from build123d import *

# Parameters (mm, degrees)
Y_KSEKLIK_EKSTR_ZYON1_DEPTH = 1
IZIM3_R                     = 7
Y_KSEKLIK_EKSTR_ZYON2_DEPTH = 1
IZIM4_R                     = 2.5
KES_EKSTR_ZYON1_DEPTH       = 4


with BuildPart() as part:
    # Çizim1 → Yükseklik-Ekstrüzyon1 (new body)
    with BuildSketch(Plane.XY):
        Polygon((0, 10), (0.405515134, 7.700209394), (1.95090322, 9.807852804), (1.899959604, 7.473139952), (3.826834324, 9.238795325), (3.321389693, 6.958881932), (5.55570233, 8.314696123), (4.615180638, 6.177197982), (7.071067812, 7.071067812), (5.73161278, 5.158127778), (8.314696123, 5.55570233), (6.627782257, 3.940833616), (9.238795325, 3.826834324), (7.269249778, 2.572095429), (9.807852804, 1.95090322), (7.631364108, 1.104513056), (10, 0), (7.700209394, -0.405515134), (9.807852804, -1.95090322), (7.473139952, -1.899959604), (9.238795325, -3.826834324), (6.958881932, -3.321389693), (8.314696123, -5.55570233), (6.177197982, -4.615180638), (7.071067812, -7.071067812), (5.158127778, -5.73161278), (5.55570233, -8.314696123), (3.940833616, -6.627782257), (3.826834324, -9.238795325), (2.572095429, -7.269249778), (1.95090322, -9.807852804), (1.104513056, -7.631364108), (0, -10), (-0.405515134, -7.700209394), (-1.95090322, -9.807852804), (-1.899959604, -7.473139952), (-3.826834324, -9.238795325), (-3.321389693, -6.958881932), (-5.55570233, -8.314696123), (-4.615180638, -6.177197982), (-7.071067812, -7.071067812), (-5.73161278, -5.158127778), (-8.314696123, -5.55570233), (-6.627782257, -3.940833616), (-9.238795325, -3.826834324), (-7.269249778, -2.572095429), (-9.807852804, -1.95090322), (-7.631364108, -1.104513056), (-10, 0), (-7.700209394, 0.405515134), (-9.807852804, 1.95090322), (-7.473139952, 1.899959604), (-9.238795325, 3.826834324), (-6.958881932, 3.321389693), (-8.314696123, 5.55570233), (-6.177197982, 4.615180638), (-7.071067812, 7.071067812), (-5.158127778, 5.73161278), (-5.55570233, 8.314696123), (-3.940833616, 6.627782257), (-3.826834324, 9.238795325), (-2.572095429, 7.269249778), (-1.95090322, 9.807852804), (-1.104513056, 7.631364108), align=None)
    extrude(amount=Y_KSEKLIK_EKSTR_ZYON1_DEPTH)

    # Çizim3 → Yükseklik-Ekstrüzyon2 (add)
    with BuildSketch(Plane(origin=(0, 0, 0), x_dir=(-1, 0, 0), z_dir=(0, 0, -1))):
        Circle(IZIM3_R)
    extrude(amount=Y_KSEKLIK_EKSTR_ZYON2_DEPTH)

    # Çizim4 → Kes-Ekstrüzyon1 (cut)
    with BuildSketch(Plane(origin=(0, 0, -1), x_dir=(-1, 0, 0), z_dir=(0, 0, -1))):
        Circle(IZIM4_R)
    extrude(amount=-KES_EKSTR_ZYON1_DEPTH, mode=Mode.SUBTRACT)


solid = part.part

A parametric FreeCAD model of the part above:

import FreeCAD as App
import Part
import Sketcher
from FreeCAD import Vector
Q = App.Units.Quantity

doc = App.newDocument("Part")
body = doc.addObject("PartDesign::Body", "Body")

sketch1 = doc.addObject("Sketcher::SketchObject", "Sketch")
body.addObject(sketch1)
sketch1.AttachmentSupport = (doc.XY_Plane, [""])
sketch1.MapMode = "FlatFace"
sketch1.addGeometry(Part.LineSegment(Vector(0.405515, 7.700209, 0), Vector(0, 10, 0)), False)
sketch1.addGeometry(Part.LineSegment(Vector(0, 10, 0), Vector(-1.104513, 7.631364, 0)), False)
sketch1.addGeometry(Part.LineSegment(Vector(-1.104513, 7.631364, 0), Vector(-1.950903, 9.807853, 0)), False)
sketch1.addGeometry(Part.LineSegment(Vector(-1.950903, 9.807853, 0), Vector(-2.572095, 7.26925, 0)), False)
sketch1.addGeometry(Part.LineSegment(Vector(-2.572095, 7.26925, 0), Vector(-3.826834, 9.238795, 0)), False)
sketch1.addGeometry(Part.LineSegment(Vector(-3.826834, 9.238795, 0), Vector(-3.940834, 6.627782, 0)), False)
sketch1.addGeometry(Part.LineSegment(Vector(-3.940834, 6.627782, 0), Vector(-5.555702, 8.314696, 0)), False)
sketch1.addGeometry(Part.LineSegment(Vector(-5.555702, 8.314696, 0), Vector(-5.158128, 5.731613, 0)), False)
sketch1.addGeometry(Part.LineSegment(Vector(-5.158128, 5.731613, 0), Vector(-7.071068, 7.071068, 0)), False)
sketch1.addGeometry(Part.LineSegment(Vector(-7.071068, 7.071068, 0), Vector(-6.177198, 4.615181, 0)), False)
sketch1.addGeometry(Part.LineSegment(Vector(-6.177198, 4.615181, 0), Vector(-8.314696, 5.555702, 0)), False)
sketch1.addGeometry(Part.LineSegment(Vector(-8.314696, 5.555702, 0), Vector(-6.958882, 3.32139, 0)), False)
sketch1.addGeometry(Part.LineSegment(Vector(-6.958882, 3.32139, 0), Vector(-9.238795, 3.826834, 0)), False)
sketch1.addGeometry(Part.LineSegment(Vector(-9.238795, 3.826834, 0), Vector(-7.47314, 1.89996, 0)), False)
sketch1.addGeometry(Part.LineSegment(Vector(-7.47314, 1.89996, 0), Vector(-9.807853, 1.950903, 0)), False)
sketch1.addGeometry(Part.LineSegment(Vector(-9.807853, 1.950903, 0), Vector(-7.700209, 0.405515, 0)), False)
sketch1.addGeometry(Part.LineSegment(Vector(-7.700209, 0.405515, 0), Vector(-10, 0, 0)), False)
sketch1.addGeometry(Part.LineSegment(Vector(-10, 0, 0), Vector(-7.631364, -1.104513, 0)), False)
sketch1.addGeometry(Part.LineSegment(Vector(-7.631364, -1.104513, 0), Vector(-9.807853, -1.950903, 0)), False)
sketch1.addGeometry(Part.LineSegment(Vector(-9.807853, -1.950903, 0), Vector(-7.26925, -2.572095, 0)), False)
sketch1.addGeometry(Part.LineSegment(Vector(-7.26925, -2.572095, 0), Vector(-9.238795, -3.826834, 0)), False)
sketch1.addGeometry(Part.LineSegment(Vector(-9.238795, -3.826834, 0), Vector(-6.627782, -3.940834, 0)), False)
sketch1.addGeometry(Part.LineSegment(Vector(-6.627782, -3.940834, 0), Vector(-8.314696, -5.555702, 0)), False)
sketch1.addGeometry(Part.LineSegment(Vector(-8.314696, -5.555702, 0), Vector(-5.731613, -5.158128, 0)), False)
sketch1.addGeometry(Part.LineSegment(Vector(-5.731613, -5.158128, 0), Vector(-7.071068, -7.071068, 0)), False)
sketch1.addGeometry(Part.LineSegment(Vector(-7.071068, -7.071068, 0), Vector(-4.615181, -6.177198, 0)), False)
sketch1.addGeometry(Part.LineSegment(Vector(-4.615181, -6.177198, 0), Vector(-5.555702, -8.314696, 0)), False)
sketch1.addGeometry(Part.LineSegment(Vector(-5.555702, -8.314696, 0), Vector(-3.32139, -6.958882, 0)), False)
sketch1.addGeometry(Part.LineSegment(Vector(-3.32139, -6.958882, 0), Vector(-3.826834, -9.238795, 0)), False)
sketch1.addGeometry(Part.LineSegment(Vector(-3.826834, -9.238795, 0), Vector(-1.89996, -7.47314, 0)), False)
sketch1.addGeometry(Part.LineSegment(Vector(-1.89996, -7.47314, 0), Vector(-1.950903, -9.807853, 0)), False)
sketch1.addGeometry(Part.LineSegment(Vector(-1.950903, -9.807853, 0), Vector(-0.405515, -7.700209, 0)), False)
sketch1.addGeometry(Part.LineSegment(Vector(-0.405515, -7.700209, 0), Vector(0, -10, 0)), False)
sketch1.addGeometry(Part.LineSegment(Vector(0, -10, 0), Vector(1.104513, -7.631364, 0)), False)
sketch1.addGeometry(Part.LineSegment(Vector(1.104513, -7.631364, 0), Vector(1.950903, -9.807853, 0)), False)
sketch1.addGeometry(Part.LineSegment(Vector(1.950903, -9.807853, 0), Vector(2.572095, -7.26925, 0)), False)
sketch1.addGeometry(Part.LineSegment(Vector(2.572095, -7.26925, 0), Vector(3.826834, -9.238795, 0)), False)
sketch1.addGeometry(Part.LineSegment(Vector(3.826834, -9.238795, 0), Vector(3.940834, -6.627782, 0)), False)
sketch1.addGeometry(Part.LineSegment(Vector(3.940834, -6.627782, 0), Vector(5.555702, -8.314696, 0)), False)
sketch1.addGeometry(Part.LineSegment(Vector(5.555702, -8.314696, 0), Vector(5.158128, -5.731613, 0)), False)
sketch1.addGeometry(Part.LineSegment(Vector(5.158128, -5.731613, 0), Vector(7.071068, -7.071068, 0)), False)
sketch1.addGeometry(Part.LineSegment(Vector(7.071068, -7.071068, 0), Vector(6.177198, -4.615181, 0)), False)
sketch1.addGeometry(Part.LineSegment(Vector(6.177198, -4.615181, 0), Vector(8.314696, -5.555702, 0)), False)
sketch1.addGeometry(Part.LineSegment(Vector(8.314696, -5.555702, 0), Vector(6.958882, -3.32139, 0)), False)
sketch1.addGeometry(Part.LineSegment(Vector(6.958882, -3.32139, 0), Vector(9.238795, -3.826834, 0)), False)
sketch1.addGeometry(Part.LineSegment(Vector(9.238795, -3.826834, 0), Vector(7.47314, -1.89996, 0)), False)
sketch1.addGeometry(Part.LineSegment(Vector(7.47314, -1.89996, 0), Vector(9.807853, -1.950903, 0)), False)
sketch1.addGeometry(Part.LineSegment(Vector(9.807853, -1.950903, 0), Vector(7.700209, -0.405515, 0)), False)
sketch1.addGeometry(Part.LineSegment(Vector(7.700209, -0.405515, 0), Vector(10, 0, 0)), False)
sketch1.addGeometry(Part.LineSegment(Vector(10, 0, 0), Vector(7.631364, 1.104513, 0)), False)
sketch1.addGeometry(Part.LineSegment(Vector(7.631364, 1.104513, 0), Vector(9.807853, 1.950903, 0)), False)
sketch1.addGeometry(Part.LineSegment(Vector(9.807853, 1.950903, 0), Vector(7.26925, 2.572095, 0)), False)
sketch1.addGeometry(Part.LineSegment(Vector(7.26925, 2.572095, 0), Vector(9.238795, 3.826834, 0)), False)
sketch1.addGeometry(Part.LineSegment(Vector(9.238795, 3.826834, 0), Vector(6.627782, 3.940834, 0)), False)
sketch1.addGeometry(Part.LineSegment(Vector(6.627782, 3.940834, 0), Vector(8.314696, 5.555702, 0)), False)
sketch1.addGeometry(Part.LineSegment(Vector(8.314696, 5.555702, 0), Vector(5.731613, 5.158128, 0)), False)
sketch1.addGeometry(Part.LineSegment(Vector(5.731613, 5.158128, 0), Vector(7.071068, 7.071068, 0)), False)
sketch1.addGeometry(Part.LineSegment(Vector(7.071068, 7.071068, 0), Vector(4.615181, 6.177198, 0)), False)
sketch1.addGeometry(Part.LineSegment(Vector(4.615181, 6.177198, 0), Vector(5.555702, 8.314696, 0)), False)
sketch1.addGeometry(Part.LineSegment(Vector(5.555702, 8.314696, 0), Vector(3.32139, 6.958882, 0)), False)
sketch1.addGeometry(Part.LineSegment(Vector(3.32139, 6.958882, 0), Vector(3.826834, 9.238795, 0)), False)
sketch1.addGeometry(Part.LineSegment(Vector(3.826834, 9.238795, 0), Vector(1.89996, 7.47314, 0)), False)
sketch1.addGeometry(Part.LineSegment(Vector(1.89996, 7.47314, 0), Vector(1.950903, 9.807853, 0)), False)
sketch1.addGeometry(Part.LineSegment(Vector(1.950903, 9.807853, 0), Vector(0.405515, 7.700209, 0)), False)
sketch1.addConstraint(Sketcher.Constraint("Coincident", 0, 2, 1, 1))
sketch1.addConstraint(Sketcher.Constraint("Coincident", 1, 2, 2, 1))
sketch1.addConstraint(Sketcher.Constraint("Coincident", 2, 2, 3, 1))
sketch1.addConstraint(Sketcher.Constraint("Coincident", 3, 2, 4, 1))
sketch1.addConstraint(Sketcher.Constraint("Coincident", 4, 2, 5, 1))
sketch1.addConstraint(Sketcher.Constraint("Coincident", 5, 2, 6, 1))
sketch1.addConstraint(Sketcher.Constraint("Coincident", 6, 2, 7, 1))
sketch1.addConstraint(Sketcher.Constraint("Coincident", 7, 2, 8, 1))
sketch1.addConstraint(Sketcher.Constraint("Coincident", 8, 2, 9, 1))
sketch1.addConstraint(Sketcher.Constraint("Coincident", 9, 2, 10, 1))
sketch1.addConstraint(Sketcher.Constraint("Coincident", 10, 2, 11, 1))
sketch1.addConstraint(Sketcher.Constraint("Coincident", 11, 2, 12, 1))
sketch1.addConstraint(Sketcher.Constraint("Coincident", 12, 2, 13, 1))
sketch1.addConstraint(Sketcher.Constraint("Coincident", 13, 2, 14, 1))
sketch1.addConstraint(Sketcher.Constraint("Coincident", 14, 2, 15, 1))
sketch1.addConstraint(Sketcher.Constraint("Coincident", 15, 2, 16, 1))
sketch1.addConstraint(Sketcher.Constraint("Coincident", 16, 2, 17, 1))
sketch1.addConstraint(Sketcher.Constraint("Coincident", 17, 2, 18, 1))
sketch1.addConstraint(Sketcher.Constraint("Coincident", 18, 2, 19, 1))
sketch1.addConstraint(Sketcher.Constraint("Coincident", 19, 2, 20, 1))
sketch1.addConstraint(Sketcher.Constraint("Coincident", 20, 2, 21, 1))
sketch1.addConstraint(Sketcher.Constraint("Coincident", 21, 2, 22, 1))
sketch1.addConstraint(Sketcher.Constraint("Coincident", 22, 2, 23, 1))
sketch1.addConstraint(Sketcher.Constraint("Coincident", 23, 2, 24, 1))
sketch1.addConstraint(Sketcher.Constraint("Coincident", 24, 2, 25, 1))
sketch1.addConstraint(Sketcher.Constraint("Coincident", 25, 2, 26, 1))
sketch1.addConstraint(Sketcher.Constraint("Coincident", 26, 2, 27, 1))
sketch1.addConstraint(Sketcher.Constraint("Coincident", 27, 2, 28, 1))
sketch1.addConstraint(Sketcher.Constraint("Coincident", 28, 2, 29, 1))
sketch1.addConstraint(Sketcher.Constraint("Coincident", 29, 2, 30, 1))
sketch1.addConstraint(Sketcher.Constraint("Coincident", 30, 2, 31, 1))
sketch1.addConstraint(Sketcher.Constraint("Coincident", 31, 2, 32, 1))
sketch1.addConstraint(Sketcher.Constraint("Coincident", 32, 2, 33, 1))
sketch1.addConstraint(Sketcher.Constraint("Coincident", 33, 2, 34, 1))
sketch1.addConstraint(Sketcher.Constraint("Coincident", 34, 2, 35, 1))
sketch1.addConstraint(Sketcher.Constraint("Coincident", 35, 2, 36, 1))
sketch1.addConstraint(Sketcher.Constraint("Coincident", 36, 2, 37, 1))
sketch1.addConstraint(Sketcher.Constraint("Coincident", 37, 2, 38, 1))
sketch1.addConstraint(Sketcher.Constraint("Coincident", 38, 2, 39, 1))
sketch1.addConstraint(Sketcher.Constraint("Coincident", 39, 2, 40, 1))
sketch1.addConstraint(Sketcher.Constraint("Coincident", 40, 2, 41, 1))
sketch1.addConstraint(Sketcher.Constraint("Coincident", 41, 2, 42, 1))
sketch1.addConstraint(Sketcher.Constraint("Coincident", 42, 2, 43, 1))
sketch1.addConstraint(Sketcher.Constraint("Coincident", 43, 2, 44, 1))
sketch1.addConstraint(Sketcher.Constraint("Coincident", 44, 2, 45, 1))
sketch1.addConstraint(Sketcher.Constraint("Coincident", 45, 2, 46, 1))
sketch1.addConstraint(Sketcher.Constraint("Coincident", 46, 2, 47, 1))
sketch1.addConstraint(Sketcher.Constraint("Coincident", 47, 2, 48, 1))
sketch1.addConstraint(Sketcher.Constraint("Coincident", 48, 2, 49, 1))
sketch1.addConstraint(Sketcher.Constraint("Coincident", 49, 2, 50, 1))
sketch1.addConstraint(Sketcher.Constraint("Coincident", 50, 2, 51, 1))
sketch1.addConstraint(Sketcher.Constraint("Coincident", 51, 2, 52, 1))
sketch1.addConstraint(Sketcher.Constraint("Coincident", 52, 2, 53, 1))
sketch1.addConstraint(Sketcher.Constraint("Coincident", 53, 2, 54, 1))
sketch1.addConstraint(Sketcher.Constraint("Coincident", 54, 2, 55, 1))
sketch1.addConstraint(Sketcher.Constraint("Coincident", 55, 2, 56, 1))
sketch1.addConstraint(Sketcher.Constraint("Coincident", 56, 2, 57, 1))
sketch1.addConstraint(Sketcher.Constraint("Coincident", 57, 2, 58, 1))
sketch1.addConstraint(Sketcher.Constraint("Coincident", 58, 2, 59, 1))
sketch1.addConstraint(Sketcher.Constraint("Coincident", 59, 2, 60, 1))
sketch1.addConstraint(Sketcher.Constraint("Coincident", 60, 2, 61, 1))
sketch1.addConstraint(Sketcher.Constraint("Coincident", 61, 2, 62, 1))
sketch1.addConstraint(Sketcher.Constraint("Coincident", 62, 2, 63, 1))
sketch1.addConstraint(Sketcher.Constraint("Coincident", 63, 2, 0, 1))
sketch1.addConstraint(Sketcher.Constraint("Symmetric", 0, 2, 32, 2, -1, 1))
sketch1.addConstraint(Sketcher.Constraint("Symmetric", 1, 2, 33, 2, -1, 1))
sketch1.addConstraint(Sketcher.Constraint("Symmetric", 2, 2, 34, 2, -1, 1))
sketch1.addConstraint(Sketcher.Constraint("Symmetric", 3, 2, 35, 2, -1, 1))
sketch1.addConstraint(Sketcher.Constraint("Symmetric", 4, 2, 36, 2, -1, 1))
sketch1.addConstraint(Sketcher.Constraint("Symmetric", 5, 2, 37, 2, -1, 1))
sketch1.addConstraint(Sketcher.Constraint("Symmetric", 6, 2, 38, 2, -1, 1))
sketch1.addConstraint(Sketcher.Constraint("Symmetric", 7, 2, 39, 2, -1, 1))
sketch1.addConstraint(Sketcher.Constraint("Symmetric", 8, 2, 40, 2, -1, 1))
sketch1.addConstraint(Sketcher.Constraint("Symmetric", 9, 2, 41, 2, -1, 1))
sketch1.addConstraint(Sketcher.Constraint("Symmetric", 10, 2, 42, 2, -1, 1))
sketch1.addConstraint(Sketcher.Constraint("Symmetric", 11, 2, 43, 2, -1, 1))
sketch1.addConstraint(Sketcher.Constraint("Symmetric", 12, 2, 44, 2, -1, 1))
sketch1.addConstraint(Sketcher.Constraint("Symmetric", 13, 2, 45, 2, -1, 1))
sketch1.addConstraint(Sketcher.Constraint("Symmetric", 14, 2, 46, 2, -1, 1))
sketch1.addConstraint(Sketcher.Constraint("Symmetric", 15, 2, 47, 2, -1, 1))
sketch1.addConstraint(Sketcher.Constraint("Symmetric", 16, 2, 48, 2, -1, 1))
sketch1.addConstraint(Sketcher.Constraint("Symmetric", 17, 2, 49, 2, -1, 1))
sketch1.addConstraint(Sketcher.Constraint("Symmetric", 18, 2, 50, 2, -1, 1))
sketch1.addConstraint(Sketcher.Constraint("Symmetric", 19, 2, 51, 2, -1, 1))
sketch1.addConstraint(Sketcher.Constraint("Symmetric", 20, 2, 52, 2, -1, 1))
sketch1.addConstraint(Sketcher.Constraint("Symmetric", 21, 2, 53, 2, -1, 1))
sketch1.addConstraint(Sketcher.Constraint("Symmetric", 22, 2, 54, 2, -1, 1))
sketch1.addConstraint(Sketcher.Constraint("Symmetric", 23, 2, 55, 2, -1, 1))
sketch1.addConstraint(Sketcher.Constraint("Symmetric", 24, 2, 56, 2, -1, 1))
sketch1.addConstraint(Sketcher.Constraint("Symmetric", 25, 2, 57, 2, -1, 1))
sketch1.addConstraint(Sketcher.Constraint("Symmetric", 26, 2, 58, 2, -1, 1))
sketch1.addConstraint(Sketcher.Constraint("Symmetric", 27, 2, 59, 2, -1, 1))
sketch1.addConstraint(Sketcher.Constraint("Symmetric", 28, 2, 60, 2, -1, 1))
sketch1.addConstraint(Sketcher.Constraint("Symmetric", 29, 2, 61, 2, -1, 1))
sketch1.addConstraint(Sketcher.Constraint("Symmetric", 30, 2, 62, 2, -1, 1))
sketch1.addConstraint(Sketcher.Constraint("Symmetric", 31, 2, 63, 2, -1, 1))
sketch1.addConstraint(Sketcher.Constraint("Symmetric", 30, 2, 34, 2, -2))
sketch1.addConstraint(Sketcher.Constraint("Symmetric", 28, 2, 36, 2, -2))
sketch1.addConstraint(Sketcher.Constraint("Symmetric", 26, 2, 38, 2, -2))
sketch1.addConstraint(Sketcher.Constraint("Symmetric", 24, 2, 40, 2, -2))
sketch1.addConstraint(Sketcher.Constraint("Symmetric", 22, 2, 42, 2, -2))
sketch1.addConstraint(Sketcher.Constraint("Symmetric", 20, 2, 44, 2, -2))
sketch1.addConstraint(Sketcher.Constraint("Symmetric", 18, 2, 46, 2, -2))
sketch1.addConstraint(Sketcher.Constraint("PointOnObject", 0, 2, -2))
sketch1.addConstraint(Sketcher.Constraint("PointOnObject", 16, 2, -1))
sketch1.addConstraint(Sketcher.Constraint("Perpendicular", 0, 16))
sketch1.addConstraint(Sketcher.Constraint("Perpendicular", 1, 17))
sketch1.addConstraint(Sketcher.Constraint("Perpendicular", 2, 18))
sketch1.addConstraint(Sketcher.Constraint("Perpendicular", 3, 19))
sketch1.addConstraint(Sketcher.Constraint("Perpendicular", 4, 20))
sketch1.addConstraint(Sketcher.Constraint("Perpendicular", 5, 21))
sketch1.addConstraint(Sketcher.Constraint("Perpendicular", 6, 22))
sketch1.addConstraint(Sketcher.Constraint("Perpendicular", 7, 23))
sketch1.addConstraint(Sketcher.Constraint("Perpendicular", 8, 24))
sketch1.addConstraint(Sketcher.Constraint("Perpendicular", 9, 25))
sketch1.addConstraint(Sketcher.Constraint("Perpendicular", 10, 26))
sketch1.addConstraint(Sketcher.Constraint("Perpendicular", 11, 27))
sketch1.addConstraint(Sketcher.Constraint("Perpendicular", 12, 28))
sketch1.addConstraint(Sketcher.Constraint("Perpendicular", 13, 29))
sketch1.addConstraint(Sketcher.Constraint("Perpendicular", 14, 30))
sketch1.addConstraint(Sketcher.Constraint("Perpendicular", 15, 31))
sketch1.addConstraint(Sketcher.Constraint("Equal", 0, 2))
sketch1.addConstraint(Sketcher.Constraint("Equal", 1, 3))
sketch1.addConstraint(Sketcher.Constraint("Equal", 2, 4))
sketch1.addConstraint(Sketcher.Constraint("Equal", 3, 5))
sketch1.addConstraint(Sketcher.Constraint("Equal", 4, 6))
sketch1.addConstraint(Sketcher.Constraint("Equal", 5, 7))
sketch1.addConstraint(Sketcher.Constraint("Equal", 6, 8))
sketch1.addConstraint(Sketcher.Constraint("Equal", 7, 9))
sketch1.addConstraint(Sketcher.Constraint("Equal", 8, 10))
sketch1.addConstraint(Sketcher.Constraint("Equal", 9, 11))
sketch1.addConstraint(Sketcher.Constraint("Equal", 10, 12))
sketch1.addConstraint(Sketcher.Constraint("Equal", 11, 13))
sketch1.addConstraint(Sketcher.Constraint("Equal", 12, 14))
sketch1.addConstraint(Sketcher.Constraint("Equal", 13, 15))
sketch1.addConstraint(Sketcher.Constraint("Equal", 14, 16))
sketch1.addConstraint(Sketcher.Constraint("Equal", 15, 17))
sketch1.addConstraint(Sketcher.Constraint("Equal", 17, 19))
sketch1.addConstraint(Sketcher.Constraint("Equal", 18, 20))
sketch1.addConstraint(Sketcher.Constraint("Equal", 19, 21))
sketch1.addConstraint(Sketcher.Constraint("Equal", 20, 22))
sketch1.addConstraint(Sketcher.Constraint("Equal", 21, 23))
sketch1.addConstraint(Sketcher.Constraint("Equal", 22, 24))
sketch1.addConstraint(Sketcher.Constraint("Angle", 0, Q("100 deg")))
sketch1.addConstraint(Sketcher.Constraint("Angle", 1, Q("-115 deg")))
sketch1.addConstraint(Sketcher.Constraint("Angle", 8, Q("145 deg")))
sketch1.addConstraint(Sketcher.Constraint("Angle", 9, Q("-70 deg")))
sketch1.addConstraint(Sketcher.Constraint("DistanceY", -1, 1, 0, 2, Q("10 mm")))
sketch1.addConstraint(Sketcher.Constraint("Angle", 4, Q("122.5 deg")))
sketch1.addConstraint(Sketcher.Constraint("Angle", 5, Q("-92.5 deg")))
sketch1.addConstraint(Sketcher.Constraint("Angle", 12, Q("167.5 deg")))
sketch1.addConstraint(Sketcher.Constraint("Angle", 13, Q("-47.5 deg")))
sketch1.addConstraint(Sketcher.Constraint("Angle", 2, Q("111.25 deg")))
pad1 = doc.addObject("PartDesign::Pad", "Pad")
body.addObject(pad1)
pad1.Profile = sketch1
pad1.Length = 1

sketch2 = doc.addObject("Sketcher::SketchObject", "Sketch001")
body.addObject(sketch2)
sketch2.AttachmentSupport = (doc.XY_Plane, [""])
sketch2.MapMode = "FlatFace"
sketch2.addGeometry(Part.Circle(Vector(0, 0, 0), Vector(0, 0, 1), 7), False)
sketch2.addConstraint(Sketcher.Constraint("Coincident", 0, 3, -1, 1))
sketch2.addConstraint(Sketcher.Constraint("Diameter", 0, Q("14 mm")))
pad2 = doc.addObject("PartDesign::Pad", "Pad001")
body.addObject(pad2)
pad2.Profile = sketch2
pad2.Length = 1
pad2.Reversed = True

sketch3 = doc.addObject("Sketcher::SketchObject", "Sketch002")
body.addObject(sketch3)
sketch3.AttachmentSupport = (doc.XY_Plane, [""])
sketch3.MapMode = "FlatFace"
sketch3.AttachmentOffset = App.Placement(Vector(0, 0, -1), App.Rotation())
sketch3.addGeometry(Part.Circle(Vector(0, 0, 0), Vector(0, 0, 1), 2.5), False)
sketch3.addConstraint(Sketcher.Constraint("Coincident", 0, 3, -1, 1))
sketch3.addConstraint(Sketcher.Constraint("Diameter", 0, Q("5 mm")))
pocket1 = doc.addObject("PartDesign::Pocket", "Pocket")
body.addObject(pocket1)
pocket1.Profile = sketch3
pocket1.Length = 4
pocket1.Reversed = True

doc.recompute()
